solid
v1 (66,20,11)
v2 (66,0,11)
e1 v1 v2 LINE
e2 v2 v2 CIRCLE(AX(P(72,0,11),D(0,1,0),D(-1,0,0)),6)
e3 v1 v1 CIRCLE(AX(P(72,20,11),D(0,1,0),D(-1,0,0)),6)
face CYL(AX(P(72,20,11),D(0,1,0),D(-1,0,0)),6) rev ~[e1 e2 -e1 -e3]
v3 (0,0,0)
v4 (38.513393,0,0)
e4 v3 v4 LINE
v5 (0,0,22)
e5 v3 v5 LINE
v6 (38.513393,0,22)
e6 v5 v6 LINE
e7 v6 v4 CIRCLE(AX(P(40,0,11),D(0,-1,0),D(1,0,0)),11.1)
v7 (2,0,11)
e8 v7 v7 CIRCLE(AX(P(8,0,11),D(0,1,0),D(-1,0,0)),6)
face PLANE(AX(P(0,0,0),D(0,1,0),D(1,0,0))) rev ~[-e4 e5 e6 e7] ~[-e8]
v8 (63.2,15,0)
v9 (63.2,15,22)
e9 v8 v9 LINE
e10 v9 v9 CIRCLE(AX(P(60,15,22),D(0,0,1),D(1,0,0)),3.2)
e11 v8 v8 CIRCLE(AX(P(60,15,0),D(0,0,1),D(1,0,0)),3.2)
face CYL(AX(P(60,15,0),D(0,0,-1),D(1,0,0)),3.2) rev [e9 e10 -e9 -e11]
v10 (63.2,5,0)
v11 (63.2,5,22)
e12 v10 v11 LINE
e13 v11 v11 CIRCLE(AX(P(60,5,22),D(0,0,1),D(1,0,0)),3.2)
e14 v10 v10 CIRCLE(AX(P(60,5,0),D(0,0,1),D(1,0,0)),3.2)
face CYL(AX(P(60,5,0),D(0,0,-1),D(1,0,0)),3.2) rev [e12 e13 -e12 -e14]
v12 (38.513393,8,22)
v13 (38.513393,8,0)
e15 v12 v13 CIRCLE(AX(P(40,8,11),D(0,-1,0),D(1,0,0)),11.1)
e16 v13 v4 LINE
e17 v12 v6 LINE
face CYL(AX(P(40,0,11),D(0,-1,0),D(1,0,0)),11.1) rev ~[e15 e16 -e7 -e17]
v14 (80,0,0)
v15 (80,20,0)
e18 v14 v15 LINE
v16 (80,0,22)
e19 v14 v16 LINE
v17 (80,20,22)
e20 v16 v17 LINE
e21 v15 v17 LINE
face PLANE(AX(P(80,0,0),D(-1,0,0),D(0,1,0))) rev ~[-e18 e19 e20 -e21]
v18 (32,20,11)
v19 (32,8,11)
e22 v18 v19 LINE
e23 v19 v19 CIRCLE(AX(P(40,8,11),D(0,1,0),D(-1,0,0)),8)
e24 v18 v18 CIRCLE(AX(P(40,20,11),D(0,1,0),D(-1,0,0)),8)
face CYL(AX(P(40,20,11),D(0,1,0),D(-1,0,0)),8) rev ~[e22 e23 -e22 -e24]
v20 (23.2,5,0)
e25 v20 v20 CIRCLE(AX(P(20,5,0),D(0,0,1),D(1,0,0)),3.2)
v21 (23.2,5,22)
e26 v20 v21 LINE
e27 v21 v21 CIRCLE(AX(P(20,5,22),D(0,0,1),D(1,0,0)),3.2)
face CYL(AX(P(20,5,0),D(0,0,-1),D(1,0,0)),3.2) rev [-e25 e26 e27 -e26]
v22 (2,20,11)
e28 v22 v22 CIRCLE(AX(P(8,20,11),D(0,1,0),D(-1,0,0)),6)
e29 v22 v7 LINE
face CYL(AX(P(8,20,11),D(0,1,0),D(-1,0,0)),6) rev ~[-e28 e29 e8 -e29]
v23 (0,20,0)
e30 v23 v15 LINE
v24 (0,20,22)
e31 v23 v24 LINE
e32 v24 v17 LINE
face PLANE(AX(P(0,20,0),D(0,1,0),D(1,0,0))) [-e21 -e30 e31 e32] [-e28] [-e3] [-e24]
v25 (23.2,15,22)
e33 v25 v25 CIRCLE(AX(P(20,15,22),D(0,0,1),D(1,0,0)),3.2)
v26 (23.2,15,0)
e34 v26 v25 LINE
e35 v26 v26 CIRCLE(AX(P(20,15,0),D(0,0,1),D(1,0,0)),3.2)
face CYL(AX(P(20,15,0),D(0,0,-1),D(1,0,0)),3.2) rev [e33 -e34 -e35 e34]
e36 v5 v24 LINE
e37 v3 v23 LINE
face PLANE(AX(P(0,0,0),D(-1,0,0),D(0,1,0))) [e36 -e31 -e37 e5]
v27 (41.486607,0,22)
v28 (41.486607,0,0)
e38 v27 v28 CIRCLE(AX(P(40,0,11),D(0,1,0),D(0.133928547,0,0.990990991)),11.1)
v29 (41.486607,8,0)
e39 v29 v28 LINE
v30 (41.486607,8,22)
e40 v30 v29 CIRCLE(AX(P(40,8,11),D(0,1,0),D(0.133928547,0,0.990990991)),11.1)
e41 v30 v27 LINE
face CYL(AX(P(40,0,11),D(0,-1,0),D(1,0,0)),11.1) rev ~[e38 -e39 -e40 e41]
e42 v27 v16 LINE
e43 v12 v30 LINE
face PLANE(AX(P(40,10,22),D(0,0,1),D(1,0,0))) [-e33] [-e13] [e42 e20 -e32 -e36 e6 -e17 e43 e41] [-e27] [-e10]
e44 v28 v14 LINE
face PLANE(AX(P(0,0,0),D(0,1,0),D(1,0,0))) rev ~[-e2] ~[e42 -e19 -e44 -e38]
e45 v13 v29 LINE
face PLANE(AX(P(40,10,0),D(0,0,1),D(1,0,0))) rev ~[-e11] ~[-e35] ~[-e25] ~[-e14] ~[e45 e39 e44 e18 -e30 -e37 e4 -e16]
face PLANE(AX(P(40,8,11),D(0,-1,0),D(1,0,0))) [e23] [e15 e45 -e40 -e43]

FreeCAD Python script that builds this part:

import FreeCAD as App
import Part
import Sketcher
from FreeCAD import Vector
Q = App.Units.Quantity


def add_polygon(sketch, points):
    """Adds a closed chain of lines whose ends are joined by coincident constraints."""
    first, n = sketch.GeometryCount, len(points)
    for a, b in zip(points, points[1:] + points[:1]):
        sketch.addGeometry(Part.LineSegment(App.Vector(*a, 0), App.Vector(*b, 0)), False)
    for i in range(n):
        sketch.addConstraint(Sketcher.Constraint("Coincident", first + i, 2, first + (i + 1) % n, 1))

doc = App.newDocument("Part")
body = doc.addObject("PartDesign::Body", "Body")

# Sketch on XY plane
sketch1 = doc.addObject("Sketcher::SketchObject", "Sketch")
body.addObject(sketch1)
sketch1.AttachmentSupport = (doc.XY_Plane, [""])
sketch1.MapMode = "FlatFace"
add_polygon(sketch1, [(0, 20), (0, 0), (80, 0), (80, 20)])  # lines 0-3
sketch1.addGeometry(Part.Circle(Vector(20, 5, 0), Vector(0, 0, 1), 3.2), False)  # 4
sketch1.addGeometry(Part.Circle(Vector(60, 5, 0), Vector(0, 0, 1), 3.2), False)  # 5
sketch1.addGeometry(Part.Circle(Vector(20, 15, 0), Vector(0, 0, 1), 3.2), False)  # 6
sketch1.addGeometry(Part.Circle(Vector(60, 15, 0), Vector(0, 0, 1), 3.2), False)  # 7
sketch1.addConstraint([
    Sketcher.Constraint("Vertical", 0),
    Sketcher.Constraint("Horizontal", 1),
    Sketcher.Constraint("Vertical", 2),
    Sketcher.Constraint("Horizontal", 3),
    Sketcher.Constraint("Coincident", 0, 2, -1, 1),
    Sketcher.Constraint("Equal", 4, 5),
    Sketcher.Constraint("Equal", 5, 6),
    Sketcher.Constraint("Equal", 6, 7),
    Sketcher.Constraint("Horizontal", 4, 3, 5, 3),
    Sketcher.Constraint("Horizontal", 6, 3, 7, 3),
    Sketcher.Constraint("Vertical", 4, 3, 6, 3),
    Sketcher.Constraint("Vertical", 5, 3, 7, 3),
    Sketcher.Constraint("Diameter", 4, Q("6.4 mm")),
    Sketcher.Constraint("DistanceX", 1, 1, 1, 2, Q("80 mm")),
    Sketcher.Constraint("DistanceY", 0, 2, 0, 1, Q("20 mm")),
    Sketcher.Constraint("DistanceX", -1, 1, 4, 3, Q("20 mm")),
    Sketcher.Constraint("DistanceY", -1, 1, 4, 3, Q("5 mm")),
    Sketcher.Constraint("DistanceX", -1, 1, 5, 3, Q("60 mm")),
    Sketcher.Constraint("DistanceY", -1, 1, 6, 3, Q("15 mm")),
])
pad1 = doc.addObject("PartDesign::Pad", "Pad")
body.addObject(pad1)
pad1.Profile = sketch1
pad1.Length = 22

# Sketch on XZ plane
sketch2 = doc.addObject("Sketcher::SketchObject", "Sketch001")
body.addObject(sketch2)
sketch2.AttachmentSupport = (doc.XZ_Plane, [""])
sketch2.MapMode = "FlatFace"
sketch2.addGeometry(Part.Circle(Vector(40, 11, 0), Vector(0, 0, 1), 11), False)
sketch2.addConstraint([
    Sketcher.Constraint("Diameter", 0, Q("22.2 mm")),
    Sketcher.Constraint("DistanceX", -1, 1, 0, 3, Q("40 mm")),
    Sketcher.Constraint("DistanceY", -1, 1, 0, 3, Q("11 mm")),
])
pocket1 = doc.addObject("PartDesign::Pocket", "Pocket")
body.addObject(pocket1)
pocket1.Profile = sketch2
pocket1.Length = 8

# Sketch on XZ plane
sketch3 = doc.addObject("Sketcher::SketchObject", "Sketch002")
body.addObject(sketch3)
sketch3.AttachmentSupport = (doc.XZ_Plane, [""])
sketch3.MapMode = "FlatFace"
sketch3.AttachmentOffset = App.Placement(Vector(0, 0, -20), App.Rotation())
sketch3.addGeometry([
    Part.Circle(Vector(72, 11, 0), Vector(0, 0, 1), 6),
    Part.Circle(Vector(8, 11, 0), Vector(0, 0, 1), 6),
    Part.Circle(Vector(40, 11, 0), Vector(0, 0, 1), 8),
], False)
sketch3.addConstraint([
    Sketcher.Constraint("Equal", 0, 1),
    Sketcher.Constraint("Horizontal", 0, 3, 1, 3),
    Sketcher.Constraint("Horizontal", 1, 3, 2, 3),
    Sketcher.Constraint("Diameter", 0, Q("12 mm")),
    Sketcher.Constraint("Diameter", 2, Q("16 mm")),
    Sketcher.Constraint("DistanceX", -1, 1, 0, 3, Q("72 mm")),
    Sketcher.Constraint("DistanceY", -1, 1, 0, 3, Q("11 mm")),
    Sketcher.Constraint("DistanceX", -1, 1, 1, 3, Q("8 mm")),
    Sketcher.Constraint("DistanceX", -1, 1, 2, 3, Q("40 mm")),
])
pocket2 = doc.addObject("PartDesign::Pocket", "Pocket001")
body.addObject(pocket2)
pocket2.Profile = sketch3
pocket2.Length = 20
pocket2.Reversed = True

doc.recompute()
